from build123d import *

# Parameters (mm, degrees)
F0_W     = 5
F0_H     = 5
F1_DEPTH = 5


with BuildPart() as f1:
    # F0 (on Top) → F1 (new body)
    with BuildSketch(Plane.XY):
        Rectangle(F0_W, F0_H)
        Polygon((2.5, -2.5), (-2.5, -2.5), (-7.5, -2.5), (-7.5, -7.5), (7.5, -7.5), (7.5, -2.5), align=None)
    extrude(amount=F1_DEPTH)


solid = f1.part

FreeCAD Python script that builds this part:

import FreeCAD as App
import Part
import Sketcher


def add_polygon(sketch, points):
    """Adds a closed chain of lines whose ends are joined by coincident constraints."""
    first, n = sketch.GeometryCount, len(points)
    for a, b in zip(points, points[1:] + points[:1]):
        sketch.addGeometry(Part.LineSegment(App.Vector(*a, 0), App.Vector(*b, 0)), False)
    for i in range(n):
        sketch.addConstraint(Sketcher.Constraint("Coincident", first + i, 2, first + (i + 1) % n, 1))

doc = App.newDocument("Part")
body = doc.addObject("PartDesign::Body", "Body")

sketch1 = body.newObject("Sketcher::SketchObject", "Sketch")
sketch1.AttachmentSupport = (doc.getObject("XY_Plane"), [""])
sketch1.MapMode = "FlatFace"
add_polygon(sketch1, [(-2.5, 2.5), (-2.5, -2.5), (-7.5, -2.5), (-7.5, -7.5), (7.5, -7.5), (7.5, -2.5), (2.5, -2.5), (2.5, 2.5)])
sketch1.addConstraint([
    Sketcher.Constraint("Vertical", 0),
    Sketcher.Constraint("Horizontal", 1),
    Sketcher.Constraint("Vertical", 2),
    Sketcher.Constraint("Horizontal", 3),
    Sketcher.Constraint("Vertical", 4),
    Sketcher.Constraint("Horizontal", 5),
    Sketcher.Constraint("Vertical", 6),
    Sketcher.Constraint("Horizontal", 7),
    Sketcher.Constraint("Symmetric", 0, 2, 6, 2, -1, 1),
    Sketcher.Constraint("Symmetric", 1, 2, 4, 2, -2),
    Sketcher.Constraint("Equal", 5, 7),
    Sketcher.Constraint("Equal", 7, 0),
    Sketcher.Constraint("Equal", 0, 2),
    Sketcher.Constraint("DistanceX", 1, 2, 1, 1, 5.0),
])
pad1 = body.newObject("PartDesign::Pad", "Pad")
pad1.Profile = sketch1
pad1.Length = 5

doc.recompute()
